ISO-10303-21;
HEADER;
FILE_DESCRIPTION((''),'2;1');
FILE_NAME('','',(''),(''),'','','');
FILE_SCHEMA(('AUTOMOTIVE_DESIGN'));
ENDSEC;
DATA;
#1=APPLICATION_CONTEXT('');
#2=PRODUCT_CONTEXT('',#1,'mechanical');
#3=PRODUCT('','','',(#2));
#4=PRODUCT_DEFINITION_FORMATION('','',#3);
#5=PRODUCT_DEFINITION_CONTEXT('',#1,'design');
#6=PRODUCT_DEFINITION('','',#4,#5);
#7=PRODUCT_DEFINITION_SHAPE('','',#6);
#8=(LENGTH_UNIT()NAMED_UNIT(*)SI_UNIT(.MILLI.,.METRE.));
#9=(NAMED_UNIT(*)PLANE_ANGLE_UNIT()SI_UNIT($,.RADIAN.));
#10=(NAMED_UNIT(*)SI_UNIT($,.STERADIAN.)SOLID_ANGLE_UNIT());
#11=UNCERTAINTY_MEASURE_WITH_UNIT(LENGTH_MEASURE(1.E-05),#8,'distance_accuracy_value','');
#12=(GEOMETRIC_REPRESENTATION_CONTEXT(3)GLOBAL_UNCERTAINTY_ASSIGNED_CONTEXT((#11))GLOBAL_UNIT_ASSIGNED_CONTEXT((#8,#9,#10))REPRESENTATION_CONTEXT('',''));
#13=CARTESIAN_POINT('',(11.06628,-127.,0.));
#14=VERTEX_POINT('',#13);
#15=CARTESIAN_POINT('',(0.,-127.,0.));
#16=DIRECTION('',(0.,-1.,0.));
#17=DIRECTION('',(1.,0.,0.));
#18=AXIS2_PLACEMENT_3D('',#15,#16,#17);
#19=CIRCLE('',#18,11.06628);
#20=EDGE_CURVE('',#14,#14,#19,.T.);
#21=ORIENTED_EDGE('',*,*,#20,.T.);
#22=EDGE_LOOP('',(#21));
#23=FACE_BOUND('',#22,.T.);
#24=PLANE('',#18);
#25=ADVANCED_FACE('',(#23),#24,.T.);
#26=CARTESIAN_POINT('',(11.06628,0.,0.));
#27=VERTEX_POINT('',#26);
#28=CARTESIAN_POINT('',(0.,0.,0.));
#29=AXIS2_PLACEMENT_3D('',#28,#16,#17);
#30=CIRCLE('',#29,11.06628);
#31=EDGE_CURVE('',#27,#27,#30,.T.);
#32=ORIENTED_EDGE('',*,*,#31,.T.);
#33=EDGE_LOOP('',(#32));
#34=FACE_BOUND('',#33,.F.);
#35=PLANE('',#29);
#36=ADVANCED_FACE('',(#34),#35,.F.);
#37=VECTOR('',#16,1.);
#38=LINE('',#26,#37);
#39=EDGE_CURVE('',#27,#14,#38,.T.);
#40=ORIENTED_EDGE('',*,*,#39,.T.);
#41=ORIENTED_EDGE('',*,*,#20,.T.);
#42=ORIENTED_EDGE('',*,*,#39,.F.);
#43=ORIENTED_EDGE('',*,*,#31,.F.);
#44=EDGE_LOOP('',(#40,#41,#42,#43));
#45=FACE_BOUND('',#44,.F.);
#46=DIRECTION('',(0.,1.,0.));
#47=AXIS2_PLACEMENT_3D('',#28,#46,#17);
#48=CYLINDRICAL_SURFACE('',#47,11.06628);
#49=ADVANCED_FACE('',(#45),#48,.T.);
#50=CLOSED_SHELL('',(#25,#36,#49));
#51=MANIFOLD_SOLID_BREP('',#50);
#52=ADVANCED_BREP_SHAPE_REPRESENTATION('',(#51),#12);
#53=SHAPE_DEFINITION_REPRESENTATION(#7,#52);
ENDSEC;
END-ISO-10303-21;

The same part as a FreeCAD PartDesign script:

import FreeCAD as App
import Part
import Sketcher

V = App.Vector
Q = App.Units.Quantity

doc = App.newDocument("Part")
body = doc.addObject("PartDesign::Body", "Body")

# Sketch on XZ plane
sketch1 = body.newObject("Sketcher::SketchObject", "Sketch")
sketch1.AttachmentSupport = (doc.getObject("XZ_Plane"), [""])
sketch1.MapMode = "FlatFace"
sketch1.addGeometry(Part.Circle(V(0, 0, 0), V(0, 0, 1), 10), False)
sketch1.addConstraint([
    Sketcher.Constraint("Coincident", 0, 3, -1, 1),
    Sketcher.Constraint("Diameter", 0, 19.041637),
])
pad1 = body.newObject("PartDesign::Pad", "Pad")
pad1.Profile = sketch1
pad1.Length = Q("4 in")
body2 = doc.addObject("PartDesign::Body", "Body001")

# Sketch on XZ plane
sketch2 = body2.newObject("Sketcher::SketchObject", "Sketch001")
sketch2.AttachmentSupport = (doc.getObject("XZ_Plane001"), [""])
sketch2.MapMode = "FlatFace"
sketch2.addGeometry(Part.Circle(V(0, 0, 0), V(0, 0, 1), 11), False)
sketch2.addConstraint([
    Sketcher.Constraint("Coincident", 0, 3, -1, 1),
    Sketcher.Constraint("Diameter", 0, 22.132561),
])
pad2 = body2.newObject("PartDesign::Pad", "Pad001")
pad2.Profile = sketch2
pad2.Length = Q("5 in")
body.Visibility = False

doc.recompute()
